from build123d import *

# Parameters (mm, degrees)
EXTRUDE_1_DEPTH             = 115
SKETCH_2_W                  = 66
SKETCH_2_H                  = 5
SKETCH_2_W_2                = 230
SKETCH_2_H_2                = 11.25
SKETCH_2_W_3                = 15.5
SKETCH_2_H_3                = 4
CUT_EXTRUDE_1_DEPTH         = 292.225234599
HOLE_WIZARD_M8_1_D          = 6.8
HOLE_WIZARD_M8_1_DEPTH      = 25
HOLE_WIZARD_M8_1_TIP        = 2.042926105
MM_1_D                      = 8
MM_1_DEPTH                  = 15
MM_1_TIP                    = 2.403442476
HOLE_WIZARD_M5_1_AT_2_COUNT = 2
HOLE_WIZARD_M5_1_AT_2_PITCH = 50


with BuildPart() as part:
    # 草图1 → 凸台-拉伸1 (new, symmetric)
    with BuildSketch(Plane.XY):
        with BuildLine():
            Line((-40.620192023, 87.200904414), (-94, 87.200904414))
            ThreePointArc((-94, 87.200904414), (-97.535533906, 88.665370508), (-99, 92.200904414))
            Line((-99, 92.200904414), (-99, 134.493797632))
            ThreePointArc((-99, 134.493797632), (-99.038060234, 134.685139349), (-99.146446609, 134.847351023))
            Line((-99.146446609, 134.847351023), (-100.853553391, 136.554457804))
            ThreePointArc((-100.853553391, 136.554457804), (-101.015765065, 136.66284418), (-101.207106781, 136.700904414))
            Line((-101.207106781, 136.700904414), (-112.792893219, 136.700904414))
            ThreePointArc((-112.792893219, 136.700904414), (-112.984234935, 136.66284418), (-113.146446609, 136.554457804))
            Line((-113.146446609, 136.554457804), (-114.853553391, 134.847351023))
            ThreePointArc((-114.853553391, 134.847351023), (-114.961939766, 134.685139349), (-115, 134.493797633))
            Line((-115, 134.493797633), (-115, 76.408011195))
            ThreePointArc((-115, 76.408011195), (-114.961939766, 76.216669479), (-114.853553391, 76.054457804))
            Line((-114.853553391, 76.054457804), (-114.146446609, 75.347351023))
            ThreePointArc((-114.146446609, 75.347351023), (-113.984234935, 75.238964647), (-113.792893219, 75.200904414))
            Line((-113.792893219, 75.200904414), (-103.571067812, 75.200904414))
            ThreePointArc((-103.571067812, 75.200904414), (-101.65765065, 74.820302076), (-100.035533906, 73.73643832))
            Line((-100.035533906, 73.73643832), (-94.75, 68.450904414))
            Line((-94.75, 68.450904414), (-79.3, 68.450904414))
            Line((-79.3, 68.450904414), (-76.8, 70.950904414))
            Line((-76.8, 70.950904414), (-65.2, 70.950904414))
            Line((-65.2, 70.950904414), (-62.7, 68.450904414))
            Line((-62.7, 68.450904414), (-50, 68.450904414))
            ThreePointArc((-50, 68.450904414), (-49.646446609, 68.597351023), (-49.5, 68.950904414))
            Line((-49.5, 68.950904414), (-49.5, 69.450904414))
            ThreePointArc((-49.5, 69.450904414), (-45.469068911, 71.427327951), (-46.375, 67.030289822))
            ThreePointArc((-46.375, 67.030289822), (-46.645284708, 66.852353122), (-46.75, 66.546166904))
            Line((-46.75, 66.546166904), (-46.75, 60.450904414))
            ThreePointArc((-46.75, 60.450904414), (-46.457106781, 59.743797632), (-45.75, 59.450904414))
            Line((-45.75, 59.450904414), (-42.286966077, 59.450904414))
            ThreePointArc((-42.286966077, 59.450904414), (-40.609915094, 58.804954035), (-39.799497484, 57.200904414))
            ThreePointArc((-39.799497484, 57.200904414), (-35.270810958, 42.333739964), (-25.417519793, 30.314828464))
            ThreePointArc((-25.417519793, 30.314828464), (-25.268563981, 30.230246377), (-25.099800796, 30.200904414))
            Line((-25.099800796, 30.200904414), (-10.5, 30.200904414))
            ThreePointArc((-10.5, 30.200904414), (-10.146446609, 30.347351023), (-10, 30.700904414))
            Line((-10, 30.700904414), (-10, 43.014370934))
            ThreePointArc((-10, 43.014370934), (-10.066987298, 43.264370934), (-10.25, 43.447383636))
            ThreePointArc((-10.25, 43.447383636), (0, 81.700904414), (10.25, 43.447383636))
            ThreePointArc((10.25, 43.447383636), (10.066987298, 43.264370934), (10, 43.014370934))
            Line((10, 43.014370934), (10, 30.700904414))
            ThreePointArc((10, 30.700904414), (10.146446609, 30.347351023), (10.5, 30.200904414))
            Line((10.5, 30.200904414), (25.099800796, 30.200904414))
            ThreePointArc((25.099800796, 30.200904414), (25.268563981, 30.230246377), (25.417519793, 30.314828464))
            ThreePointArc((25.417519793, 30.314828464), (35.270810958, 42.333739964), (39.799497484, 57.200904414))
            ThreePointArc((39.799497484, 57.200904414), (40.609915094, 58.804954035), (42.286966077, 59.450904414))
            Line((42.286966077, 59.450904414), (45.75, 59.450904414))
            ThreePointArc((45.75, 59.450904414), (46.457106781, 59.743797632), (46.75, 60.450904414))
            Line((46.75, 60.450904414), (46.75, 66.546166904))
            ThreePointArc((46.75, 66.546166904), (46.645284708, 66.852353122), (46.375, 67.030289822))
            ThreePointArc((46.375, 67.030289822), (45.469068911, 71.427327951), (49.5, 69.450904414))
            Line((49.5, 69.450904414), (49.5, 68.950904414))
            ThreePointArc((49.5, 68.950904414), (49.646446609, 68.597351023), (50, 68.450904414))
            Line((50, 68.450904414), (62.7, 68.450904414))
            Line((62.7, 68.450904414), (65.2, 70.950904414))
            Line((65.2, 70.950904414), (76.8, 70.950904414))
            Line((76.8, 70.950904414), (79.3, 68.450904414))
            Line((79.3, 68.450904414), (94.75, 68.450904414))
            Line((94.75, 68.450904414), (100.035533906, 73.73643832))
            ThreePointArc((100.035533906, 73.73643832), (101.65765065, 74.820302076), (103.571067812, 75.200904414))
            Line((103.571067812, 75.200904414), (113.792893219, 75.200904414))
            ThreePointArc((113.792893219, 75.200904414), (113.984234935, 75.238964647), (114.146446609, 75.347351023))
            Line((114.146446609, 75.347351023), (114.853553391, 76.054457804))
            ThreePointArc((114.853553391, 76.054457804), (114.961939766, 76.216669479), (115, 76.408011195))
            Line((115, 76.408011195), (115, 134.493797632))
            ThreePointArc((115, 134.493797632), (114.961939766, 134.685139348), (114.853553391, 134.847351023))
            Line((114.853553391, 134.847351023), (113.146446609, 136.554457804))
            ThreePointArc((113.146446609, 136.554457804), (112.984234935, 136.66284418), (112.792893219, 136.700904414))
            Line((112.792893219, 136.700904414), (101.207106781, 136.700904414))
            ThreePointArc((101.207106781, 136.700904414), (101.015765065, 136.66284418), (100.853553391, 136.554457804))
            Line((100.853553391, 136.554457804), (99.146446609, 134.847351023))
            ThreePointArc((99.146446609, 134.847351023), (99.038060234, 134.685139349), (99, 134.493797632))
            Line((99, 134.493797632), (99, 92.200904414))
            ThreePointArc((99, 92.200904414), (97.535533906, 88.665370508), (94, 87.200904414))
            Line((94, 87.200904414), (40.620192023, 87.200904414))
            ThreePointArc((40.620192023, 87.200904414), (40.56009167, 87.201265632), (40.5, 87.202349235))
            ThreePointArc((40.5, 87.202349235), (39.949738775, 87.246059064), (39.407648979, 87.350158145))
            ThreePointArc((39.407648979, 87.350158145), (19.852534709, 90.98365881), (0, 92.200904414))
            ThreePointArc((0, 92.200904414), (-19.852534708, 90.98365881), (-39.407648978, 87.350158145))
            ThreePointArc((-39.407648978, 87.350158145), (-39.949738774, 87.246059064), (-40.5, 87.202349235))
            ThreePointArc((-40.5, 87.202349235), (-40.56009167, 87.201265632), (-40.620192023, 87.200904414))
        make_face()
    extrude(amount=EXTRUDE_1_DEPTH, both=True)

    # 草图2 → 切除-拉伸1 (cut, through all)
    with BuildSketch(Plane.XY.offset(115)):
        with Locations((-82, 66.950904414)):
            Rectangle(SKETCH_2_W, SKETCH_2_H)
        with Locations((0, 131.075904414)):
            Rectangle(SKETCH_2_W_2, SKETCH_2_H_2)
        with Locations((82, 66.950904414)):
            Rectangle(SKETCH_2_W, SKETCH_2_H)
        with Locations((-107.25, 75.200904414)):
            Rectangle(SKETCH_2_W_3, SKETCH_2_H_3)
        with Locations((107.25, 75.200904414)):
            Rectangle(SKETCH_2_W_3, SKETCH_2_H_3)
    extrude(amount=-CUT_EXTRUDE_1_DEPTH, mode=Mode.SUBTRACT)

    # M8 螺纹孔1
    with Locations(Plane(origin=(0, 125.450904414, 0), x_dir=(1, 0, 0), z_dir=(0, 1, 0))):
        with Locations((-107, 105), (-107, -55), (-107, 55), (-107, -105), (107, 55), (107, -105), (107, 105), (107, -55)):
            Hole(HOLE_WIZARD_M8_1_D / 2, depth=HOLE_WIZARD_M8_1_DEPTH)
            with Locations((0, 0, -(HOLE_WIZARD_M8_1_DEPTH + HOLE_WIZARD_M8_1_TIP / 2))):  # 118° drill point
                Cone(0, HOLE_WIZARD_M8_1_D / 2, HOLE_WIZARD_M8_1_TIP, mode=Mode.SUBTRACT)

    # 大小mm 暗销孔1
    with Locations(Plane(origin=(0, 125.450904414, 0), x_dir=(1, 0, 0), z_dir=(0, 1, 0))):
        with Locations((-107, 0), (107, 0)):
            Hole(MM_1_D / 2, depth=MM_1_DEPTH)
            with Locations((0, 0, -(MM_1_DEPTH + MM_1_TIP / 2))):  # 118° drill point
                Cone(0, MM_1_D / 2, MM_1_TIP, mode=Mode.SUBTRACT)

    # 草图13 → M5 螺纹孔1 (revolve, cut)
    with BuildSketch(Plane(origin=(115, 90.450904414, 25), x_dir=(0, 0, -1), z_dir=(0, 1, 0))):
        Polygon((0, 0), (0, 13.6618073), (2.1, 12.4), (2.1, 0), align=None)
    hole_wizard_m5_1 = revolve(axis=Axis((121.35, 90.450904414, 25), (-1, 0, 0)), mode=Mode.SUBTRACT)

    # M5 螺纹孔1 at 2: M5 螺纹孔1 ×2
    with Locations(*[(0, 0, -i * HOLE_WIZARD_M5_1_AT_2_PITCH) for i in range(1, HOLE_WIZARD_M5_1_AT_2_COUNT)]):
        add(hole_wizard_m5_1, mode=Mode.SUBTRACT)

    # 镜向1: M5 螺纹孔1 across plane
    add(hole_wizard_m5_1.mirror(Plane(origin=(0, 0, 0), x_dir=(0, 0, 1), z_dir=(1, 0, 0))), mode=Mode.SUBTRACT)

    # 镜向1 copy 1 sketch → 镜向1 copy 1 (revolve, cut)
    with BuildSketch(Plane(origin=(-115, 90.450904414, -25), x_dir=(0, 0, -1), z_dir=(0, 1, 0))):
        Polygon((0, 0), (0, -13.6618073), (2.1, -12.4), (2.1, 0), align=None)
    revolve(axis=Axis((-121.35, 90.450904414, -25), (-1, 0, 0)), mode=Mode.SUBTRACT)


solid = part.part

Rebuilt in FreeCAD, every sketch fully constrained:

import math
import FreeCAD as App
import Part
import Sketcher

V = App.Vector
Q = App.Units.Quantity


def add_polygon(sketch, points):
    """Adds a closed chain of lines whose ends are joined by coincident constraints."""
    first, n = sketch.GeometryCount, len(points)
    for a, b in zip(points, points[1:] + points[:1]):
        sketch.addGeometry(Part.LineSegment(App.Vector(*a, 0), App.Vector(*b, 0)), False)
    for i in range(n):
        sketch.addConstraint(Sketcher.Constraint("Coincident", first + i, 2, first + (i + 1) % n, 1))

doc = App.newDocument("Part")
body = doc.addObject("PartDesign::Body", "Body")

# Sketch on XY plane
sketch1 = doc.addObject("Sketcher::SketchObject", "Sketch")
body.addObject(sketch1)
sketch1.AttachmentSupport = (doc.XY_Plane, [""])
sketch1.MapMode = "FlatFace"
sketch1.addGeometry(Part.LineSegment(V(-40.620192, 87.200904, 0), V(-94, 87.200904, 0)), False)
sketch1.addGeometry(Part.ArcOfCircle(Part.Circle(V(-94, 92.200904, 0), V(0, 0, 1), 5), math.radians(180), math.radians(270)), False)
sketch1.addGeometry(Part.LineSegment(V(-99, 92.200904, 0), V(-99, 134.493798, 0)), False)
sketch1.addGeometry(Part.ArcOfCircle(Part.Circle(V(-99.5, 134.493798, 0), V(0, 0, 1), 0.5), math.radians(0), math.radians(45)), False)
sketch1.addGeometry(Part.LineSegment(V(-99.146447, 134.847351, 0), V(-100.853553, 136.554458, 0)), False)
sketch1.addGeometry(Part.ArcOfCircle(Part.Circle(V(-101.207107, 136.200904, 0), V(0, 0, 1), 0.5), math.radians(45), math.radians(90)), False)
sketch1.addGeometry(Part.LineSegment(V(-101.207107, 136.700904, 0), V(-112.792893, 136.700904, 0)), False)
sketch1.addGeometry(Part.ArcOfCircle(Part.Circle(V(-112.792893, 136.200904, 0), V(0, 0, 1), 0.5), math.radians(90), math.radians(135)), False)
sketch1.addGeometry(Part.LineSegment(V(-113.146447, 136.554458, 0), V(-114.853553, 134.847351, 0)), False)
sketch1.addGeometry(Part.ArcOfCircle(Part.Circle(V(-114.5, 134.493798, 0), V(0, 0, 1), 0.5), math.radians(135), math.radians(180)), False)
sketch1.addGeometry(Part.LineSegment(V(-115, 134.493798, 0), V(-115, 76.408011, 0)), False)
sketch1.addGeometry(Part.ArcOfCircle(Part.Circle(V(-114.5, 76.408011, 0), V(0, 0, 1), 0.5), math.radians(-180), math.radians(-135)), False)
sketch1.addGeometry(Part.LineSegment(V(-114.853553, 76.054458, 0), V(-114.146447, 75.347351, 0)), False)
sketch1.addGeometry(Part.ArcOfCircle(Part.Circle(V(-113.792893, 75.700904, 0), V(0, 0, 1), 0.5), math.radians(-135), math.radians(-90)), False)
sketch1.addGeometry(Part.LineSegment(V(-113.792893, 75.200904, 0), V(-103.571068, 75.200904, 0)), False)
sketch1.addGeometry(Part.ArcOfCircle(Part.Circle(V(-103.571068, 70.200904, 0), V(0, 0, 1), 5), math.radians(45), math.radians(90)), False)
sketch1.addGeometry(Part.LineSegment(V(-100.035534, 73.736438, 0), V(-94.75, 68.450904, 0)), False)
sketch1.addGeometry(Part.LineSegment(V(-94.75, 68.450904, 0), V(-79.3, 68.450904, 0)), False)
sketch1.addGeometry(Part.LineSegment(V(-79.3, 68.450904, 0), V(-76.8, 70.950904, 0)), False)
sketch1.addGeometry(Part.LineSegment(V(-76.8, 70.950904, 0), V(-65.2, 70.950904, 0)), False)
sketch1.addGeometry(Part.LineSegment(V(-65.2, 70.950904, 0), V(-62.7, 68.450904, 0)), False)
sketch1.addGeometry(Part.LineSegment(V(-62.7, 68.450904, 0), V(-50, 68.450904, 0)), False)
sketch1.addGeometry(Part.ArcOfCircle(Part.Circle(V(-50, 68.950904, 0), V(0, 0, 1), 0.5), math.radians(-90), math.radians(0)), False)
sketch1.addGeometry(Part.LineSegment(V(-49.5, 68.950904, 0), V(-49.5, 69.450904, 0)), False)
sketch1.addGeometry(Part.ArcOfCircle(Part.Circle(V(-47, 69.450904, 0), V(0, 0, 1), 2.5), math.radians(-75.522488), math.radians(180)), False)
sketch1.addGeometry(Part.ArcOfCircle(Part.Circle(V(-46.25, 66.546167, 0), V(0, 0, 1), 0.5), math.radians(104.477512), math.radians(180)), False)
sketch1.addGeometry(Part.LineSegment(V(-46.75, 66.546167, 0), V(-46.75, 60.450904, 0)), False)
sketch1.addGeometry(Part.ArcOfCircle(Part.Circle(V(-45.75, 60.450904, 0), V(0, 0, 1), 1), math.radians(180), math.radians(270)), False)
sketch1.addGeometry(Part.LineSegment(V(-45.75, 59.450904, 0), V(-42.286966, 59.450904, 0)), False)
sketch1.addGeometry(Part.ArcOfCircle(Part.Circle(V(-42.286966, 56.950904, 0), V(0, 0, 1), 2.5), math.radians(5.739171), math.radians(90)), False)
sketch1.addGeometry(Part.ArcOfCircle(Part.Circle(V(0, 61.200904, 0), V(0, 0, 1), 40), math.radians(-174.26083), math.radians(-129.452477)), False)
sketch1.addGeometry(Part.ArcOfCircle(Part.Circle(V(-25.099801, 30.700904, 0), V(0, 0, 1), 0.5), math.radians(-129.452477), math.radians(-90)), False)
sketch1.addGeometry(Part.LineSegment(V(-25.099801, 30.200904, 0), V(-10.5, 30.200904, 0)), False)
sketch1.addGeometry(Part.ArcOfCircle(Part.Circle(V(-10.5, 30.700904, 0), V(0, 0, 1), 0.5), math.radians(-90), math.radians(0)), False)
sketch1.addGeometry(Part.LineSegment(V(-10, 30.700904, 0), V(-10, 43.014371, 0)), False)
sketch1.addGeometry(Part.ArcOfCircle(Part.Circle(V(-10.5, 43.014371, 0), V(0, 0, 1), 0.5), math.radians(0), math.radians(60)), False)
sketch1.addGeometry(Part.ArcOfCircle(Part.Circle(V(0, 61.200904, 0), V(0, 0, 1), 20.5), math.radians(-60), math.radians(240)), False)
sketch1.addGeometry(Part.ArcOfCircle(Part.Circle(V(10.5, 43.014371, 0), V(0, 0, 1), 0.5), math.radians(120), math.radians(180)), False)
sketch1.addGeometry(Part.LineSegment(V(10, 43.014371, 0), V(10, 30.700904, 0)), False)
sketch1.addGeometry(Part.ArcOfCircle(Part.Circle(V(10.5, 30.700904, 0), V(0, 0, 1), 0.5), math.radians(180), math.radians(270)), False)
sketch1.addGeometry(Part.LineSegment(V(10.5, 30.200904, 0), V(25.099801, 30.200904, 0)), False)
sketch1.addGeometry(Part.ArcOfCircle(Part.Circle(V(25.099801, 30.700904, 0), V(0, 0, 1), 0.5), math.radians(-90), math.radians(-50.547523)), False)
sketch1.addGeometry(Part.ArcOfCircle(Part.Circle(V(0, 61.200904, 0), V(0, 0, 1), 40), math.radians(-50.547523), math.radians(-5.73917)), False)
sketch1.addGeometry(Part.ArcOfCircle(Part.Circle(V(42.286966, 56.950904, 0), V(0, 0, 1), 2.5), math.radians(90), math.radians(174.260829)), False)
sketch1.addGeometry(Part.LineSegment(V(42.286966, 59.450904, 0), V(45.75, 59.450904, 0)), False)
sketch1.addGeometry(Part.ArcOfCircle(Part.Circle(V(45.75, 60.450904, 0), V(0, 0, 1), 1), math.radians(-90), math.radians(0)), False)
sketch1.addGeometry(Part.LineSegment(V(46.75, 60.450904, 0), V(46.75, 66.546167, 0)), False)
sketch1.addGeometry(Part.ArcOfCircle(Part.Circle(V(46.25, 66.546167, 0), V(0, 0, 1), 0.5), math.radians(0), math.radians(75.522488)), False)
sketch1.addGeometry(Part.ArcOfCircle(Part.Circle(V(47, 69.450904, 0), V(0, 0, 1), 2.5), math.radians(0), math.radians(255.522488)), False)
sketch1.addGeometry(Part.LineSegment(V(49.5, 69.450904, 0), V(49.5, 68.950904, 0)), False)
sketch1.addGeometry(Part.ArcOfCircle(Part.Circle(V(50, 68.950904, 0), V(0, 0, 1), 0.5), math.radians(180), math.radians(270)), False)
sketch1.addGeometry(Part.LineSegment(V(50, 68.450904, 0), V(62.7, 68.450904, 0)), False)
sketch1.addGeometry(Part.LineSegment(V(62.7, 68.450904, 0), V(65.2, 70.950904, 0)), False)
sketch1.addGeometry(Part.LineSegment(V(65.2, 70.950904, 0), V(76.8, 70.950904, 0)), False)
sketch1.addGeometry(Part.LineSegment(V(76.8, 70.950904, 0), V(79.3, 68.450904, 0)), False)
sketch1.addGeometry(Part.LineSegment(V(79.3, 68.450904, 0), V(94.75, 68.450904, 0)), False)
sketch1.addGeometry(Part.LineSegment(V(94.75, 68.450904, 0), V(100.035534, 73.736438, 0)), False)
sketch1.addGeometry(Part.ArcOfCircle(Part.Circle(V(103.571068, 70.200904, 0), V(0, 0, 1), 5), math.radians(90), math.radians(135)), False)
sketch1.addGeometry(Part.LineSegment(V(103.571068, 75.200904, 0), V(113.792893, 75.200904, 0)), False)
sketch1.addGeometry(Part.ArcOfCircle(Part.Circle(V(113.792893, 75.700904, 0), V(0, 0, 1), 0.5), math.radians(-90), math.radians(-45)), False)
sketch1.addGeometry(Part.LineSegment(V(114.146447, 75.347351, 0), V(114.853553, 76.054458, 0)), False)
sketch1.addGeometry(Part.ArcOfCircle(Part.Circle(V(114.5, 76.408011, 0), V(0, 0, 1), 0.5), math.radians(-45), math.radians(0)), False)
sketch1.addGeometry(Part.LineSegment(V(115, 76.408011, 0), V(115, 134.493798, 0)), False)
sketch1.addGeometry(Part.ArcOfCircle(Part.Circle(V(114.5, 134.493798, 0), V(0, 0, 1), 0.5), math.radians(0), math.radians(45)), False)
sketch1.addGeometry(Part.LineSegment(V(114.853553, 134.847351, 0), V(113.146447, 136.554458, 0)), False)
sketch1.addGeometry(Part.ArcOfCircle(Part.Circle(V(112.792893, 136.200904, 0), V(0, 0, 1), 0.5), math.radians(45), math.radians(90)), False)
sketch1.addGeometry(Part.LineSegment(V(112.792893, 136.700904, 0), V(101.207107, 136.700904, 0)), False)
sketch1.addGeometry(Part.ArcOfCircle(Part.Circle(V(101.207107, 136.200904, 0), V(0, 0, 1), 0.5), math.radians(90), math.radians(135)), False)
sketch1.addGeometry(Part.LineSegment(V(100.853553, 136.554458, 0), V(99.146447, 134.847351, 0)), False)
sketch1.addGeometry(Part.ArcOfCircle(Part.Circle(V(99.5, 134.493798, 0), V(0, 0, 1), 0.5), math.radians(135), math.radians(180)), False)
sketch1.addGeometry(Part.LineSegment(V(99, 134.493798, 0), V(99, 92.200904, 0)), False)
sketch1.addGeometry(Part.ArcOfCircle(Part.Circle(V(94, 92.200904, 0), V(0, 0, 1), 5), math.radians(-90), math.radians(0)), False)
sketch1.addGeometry(Part.LineSegment(V(94, 87.200904, 0), V(40.620192, 87.200904, 0)), False)
sketch1.addGeometry(Part.ArcOfCircle(Part.Circle(V(40.620192, 92.2009, 0), V(0, 0, 1), 4.999996), math.radians(-91.377432), math.radians(-89.999999)), False)
sketch1.addGeometry(Part.ArcOfCircle(Part.Circle(V(40.620192, 92.200904, 0), V(0, 0, 1), 5), math.radians(-104.034648), math.radians(-91.377432)), False)
sketch1.addGeometry(Part.ArcOfCircle(Part.Circle(V(0, -70.299096, 0), V(0, 0, 1), 162.5), math.radians(75.965352), math.radians(90)), False)
sketch1.addGeometry(Part.ArcOfCircle(Part.Circle(V(0, -70.299096, 0), V(0, 0, 1), 162.5), math.radians(90), math.radians(104.034648)), False)
sketch1.addGeometry(Part.ArcOfCircle(Part.Circle(V(-40.620192, 92.200904, 0), V(0, 0, 1), 5), math.radians(-88.622568), math.radians(-75.965352)), False)
sketch1.addGeometry(Part.ArcOfCircle(Part.Circle(V(-40.620192, 92.2009, 0), V(0, 0, 1), 4.999996), math.radians(-90.000001), math.radians(-88.622568)), False)
sketch1.addConstraint(Sketcher.Constraint("Tangent", 0, 2, 1, 2))
sketch1.addConstraint(Sketcher.Constraint("Tangent", 1, 1, 2, 1))
sketch1.addConstraint(Sketcher.Constraint("Tangent", 2, 2, 3, 1))
sketch1.addConstraint(Sketcher.Constraint("Tangent", 3, 2, 4, 1))
sketch1.addConstraint(Sketcher.Constraint("Tangent", 4, 2, 5, 1))
sketch1.addConstraint(Sketcher.Constraint("Tangent", 5, 2, 6, 1))
sketch1.addConstraint(Sketcher.Constraint("Tangent", 6, 2, 7, 1))
sketch1.addConstraint(Sketcher.Constraint("Tangent", 7, 2, 8, 1))
sketch1.addConstraint(Sketcher.Constraint("Tangent", 8, 2, 9, 1))
sketch1.addConstraint(Sketcher.Constraint("Tangent", 9, 2, 10, 1))
sketch1.addConstraint(Sketcher.Constraint("Tangent", 10, 2, 11, 1))
sketch1.addConstraint(Sketcher.Constraint("Tangent", 11, 2, 12, 1))
sketch1.addConstraint(Sketcher.Constraint("Tangent", 12, 2, 13, 1))
sketch1.addConstraint(Sketcher.Constraint("Tangent", 13, 2, 14, 1))
sketch1.addConstraint(Sketcher.Constraint("Tangent", 14, 2, 15, 2))
sketch1.addConstraint(Sketcher.Constraint("Tangent", 15, 1, 16, 1))
sketch1.addConstraint(Sketcher.Constraint("Coincident", 16, 2, 17, 1))
sketch1.addConstraint(Sketcher.Constraint("Coincident", 17, 2, 18, 1))
sketch1.addConstraint(Sketcher.Constraint("Coincident", 18, 2, 19, 1))
sketch1.addConstraint(Sketcher.Constraint("Coincident", 19, 2, 20, 1))
sketch1.addConstraint(Sketcher.Constraint("Coincident", 20, 2, 21, 1))
sketch1.addConstraint(Sketcher.Constraint("Tangent", 21, 2, 22, 1))
sketch1.addConstraint(Sketcher.Constraint("Tangent", 22, 2, 23, 1))
sketch1.addConstraint(Sketcher.Constraint("Tangent", 23, 2, 24, 2))
sketch1.addConstraint(Sketcher.Constraint("Tangent", 24, 1, 25, 1))
sketch1.addConstraint(Sketcher.Constraint("Tangent", 25, 2, 26, 1))
sketch1.addConstraint(Sketcher.Constraint("Tangent", 26, 2, 27, 1))
sketch1.addConstraint(Sketcher.Constraint("Tangent", 27, 2, 28, 1))
sketch1.addConstraint(Sketcher.Constraint("Tangent", 28, 2, 29, 2))
sketch1.addConstraint(Sketcher.Constraint("Tangent", 29, 1, 30, 1))
sketch1.addConstraint(Sketcher.Constraint("Tangent", 30, 2, 31, 1))
sketch1.addConstraint(Sketcher.Constraint("Tangent", 31, 2, 32, 1))
sketch1.addConstraint(Sketcher.Constraint("Tangent", 32, 2, 33, 1))
sketch1.addConstraint(Sketcher.Constraint("Tangent", 33, 2, 34, 1))
sketch1.addConstraint(Sketcher.Constraint("Tangent", 34, 2, 35, 1))
sketch1.addConstraint(Sketcher.Constraint("Tangent", 35, 2, 36, 2))
sketch1.addConstraint(Sketcher.Constraint("Tangent", 36, 1, 37, 1))
sketch1.addConstraint(Sketcher.Constraint("Tangent", 37, 2, 38, 1))
sketch1.addConstraint(Sketcher.Constraint("Tangent", 38, 2, 39, 1))
sketch1.addConstraint(Sketcher.Constraint("Tangent", 39, 2, 40, 1))
sketch1.addConstraint(Sketcher.Constraint("Tangent", 40, 2, 41, 1))
sketch1.addConstraint(Sketcher.Constraint("Tangent", 41, 2, 42, 1))
sketch1.addConstraint(Sketcher.Constraint("Tangent", 42, 2, 43, 2))
sketch1.addConstraint(Sketcher.Constraint("Tangent", 43, 1, 44, 1))
sketch1.addConstraint(Sketcher.Constraint("Tangent", 44, 2, 45, 1))
sketch1.addConstraint(Sketcher.Constraint("Tangent", 45, 2, 46, 1))
sketch1.addConstraint(Sketcher.Constraint("Tangent", 46, 2, 47, 1))
sketch1.addConstraint(Sketcher.Constraint("Tangent", 47, 2, 48, 2))
sketch1.addConstraint(Sketcher.Constraint("Tangent", 48, 1, 49, 1))
sketch1.addConstraint(Sketcher.Constraint("Tangent", 49, 2, 50, 1))
sketch1.addConstraint(Sketcher.Constraint("Tangent", 50, 2, 51, 1))
sketch1.addConstraint(Sketcher.Constraint("Coincident", 51, 2, 52, 1))
sketch1.addConstraint(Sketcher.Constraint("Coincident", 52, 2, 53, 1))
sketch1.addConstraint(Sketcher.Constraint("Coincident", 53, 2, 54, 1))
sketch1.addConstraint(Sketcher.Constraint("Coincident", 54, 2, 55, 1))
sketch1.addConstraint(Sketcher.Constraint("Coincident", 55, 2, 56, 1))
sketch1.addConstraint(Sketcher.Constraint("Tangent", 56, 2, 57, 2))
sketch1.addConstraint(Sketcher.Constraint("Tangent", 57, 1, 58, 1))
sketch1.addConstraint(Sketcher.Constraint("Tangent", 58, 2, 59, 1))
sketch1.addConstraint(Sketcher.Constraint("Tangent", 59, 2, 60, 1))
sketch1.addConstraint(Sketcher.Constraint("Tangent", 60, 2, 61, 1))
sketch1.addConstraint(Sketcher.Constraint("Tangent", 61, 2, 62, 1))
sketch1.addConstraint(Sketcher.Constraint("Tangent", 62, 2, 63, 1))
sketch1.addConstraint(Sketcher.Constraint("Tangent", 63, 2, 64, 1))
sketch1.addConstraint(Sketcher.Constraint("Tangent", 64, 2, 65, 1))
sketch1.addConstraint(Sketcher.Constraint("Tangent", 65, 2, 66, 1))
sketch1.addConstraint(Sketcher.Constraint("Tangent", 66, 2, 67, 1))
sketch1.addConstraint(Sketcher.Constraint("Tangent", 67, 2, 68, 1))
sketch1.addConstraint(Sketcher.Constraint("Tangent", 68, 2, 69, 1))
sketch1.addConstraint(Sketcher.Constraint("Tangent", 69, 2, 70, 1))
sketch1.addConstraint(Sketcher.Constraint("Tangent", 70, 2, 71, 2))
sketch1.addConstraint(Sketcher.Constraint("Tangent", 71, 1, 72, 1))
sketch1.addConstraint(Sketcher.Constraint("Tangent", 72, 2, 73, 2))
sketch1.addConstraint(Sketcher.Constraint("Tangent", 73, 1, 74, 2))
sketch1.addConstraint(Sketcher.Constraint("Tangent", 74, 1, 75, 1))
sketch1.addConstraint(Sketcher.Constraint("Tangent", 75, 2, 76, 1))
sketch1.addConstraint(Sketcher.Constraint("Tangent", 76, 2, 77, 2))
sketch1.addConstraint(Sketcher.Constraint("Tangent", 77, 1, 78, 2))
sketch1.addConstraint(Sketcher.Constraint("Tangent", 78, 1, 0, 1))
sketch1.addConstraint(Sketcher.Constraint("Horizontal", 0))
sketch1.addConstraint(Sketcher.Constraint("Vertical", 2))
sketch1.addConstraint(Sketcher.Constraint("Horizontal", 6))
sketch1.addConstraint(Sketcher.Constraint("Vertical", 10))
sketch1.addConstraint(Sketcher.Constraint("Horizontal", 14))
sketch1.addConstraint(Sketcher.Constraint("Horizontal", 17))
sketch1.addConstraint(Sketcher.Constraint("Horizontal", 19))
sketch1.addConstraint(Sketcher.Constraint("Horizontal", 21))
sketch1.addConstraint(Sketcher.Constraint("Vertical", 23))
sketch1.addConstraint(Sketcher.Constraint("Vertical", 26))
sketch1.addConstraint(Sketcher.Constraint("Horizontal", 28))
sketch1.addConstraint(Sketcher.Constraint("Horizontal", 32))
sketch1.addConstraint(Sketcher.Constraint("Vertical", 34))
sketch1.addConstraint(Sketcher.Constraint("Vertical", 38))
sketch1.addConstraint(Sketcher.Constraint("Horizontal", 40))
sketch1.addConstraint(Sketcher.Constraint("Horizontal", 44))
sketch1.addConstraint(Sketcher.Constraint("Vertical", 46))
sketch1.addConstraint(Sketcher.Constraint("Vertical", 49))
sketch1.addConstraint(Sketcher.Constraint("Horizontal", 51))
sketch1.addConstraint(Sketcher.Constraint("Horizontal", 53))
sketch1.addConstraint(Sketcher.Constraint("Horizontal", 55))
sketch1.addConstraint(Sketcher.Constraint("Horizontal", 58))
sketch1.addConstraint(Sketcher.Constraint("Vertical", 62))
sketch1.addConstraint(Sketcher.Constraint("Horizontal", 66))
sketch1.addConstraint(Sketcher.Constraint("Vertical", 70))
sketch1.addConstraint(Sketcher.Constraint("Horizontal", 72))
sketch1.addConstraint(Sketcher.Constraint("Coincident", 36, 3, 30, 3))
sketch1.addConstraint(Sketcher.Constraint("Coincident", 42, 3, 30, 3))
sketch1.addConstraint(Sketcher.Constraint("Equal", 3, 5))
sketch1.addConstraint(Sketcher.Constraint("Equal", 5, 7))
sketch1.addConstraint(Sketcher.Constraint("Equal", 7, 9))
sketch1.addConstraint(Sketcher.Constraint("Equal", 9, 11))
sketch1.addConstraint(Sketcher.Constraint("Equal", 11, 13))
sketch1.addConstraint(Sketcher.Constraint("Equal", 1, 15))
sketch1.addConstraint(Sketcher.Constraint("Equal", 13, 22))
sketch1.addConstraint(Sketcher.Constraint("Equal", 22, 25))
sketch1.addConstraint(Sketcher.Constraint("Equal", 24, 29))
sketch1.addConstraint(Sketcher.Constraint("Equal", 25, 31))
sketch1.addConstraint(Sketcher.Constraint("Equal", 31, 33))
sketch1.addConstraint(Sketcher.Constraint("Equal", 33, 35))
sketch1.addConstraint(Sketcher.Constraint("Equal", 35, 37))
sketch1.addConstraint(Sketcher.Constraint("Equal", 37, 39))
sketch1.addConstraint(Sketcher.Constraint("Equal", 39, 41))
sketch1.addConstraint(Sketcher.Constraint("Equal", 30, 42))
sketch1.addConstraint(Sketcher.Constraint("Equal", 29, 43))
sketch1.addConstraint(Sketcher.Constraint("Equal", 27, 45))
sketch1.addConstraint(Sketcher.Constraint("Equal", 41, 47))
sketch1.addConstraint(Sketcher.Constraint("Equal", 43, 48))
sketch1.addConstraint(Sketcher.Constraint("Equal", 47, 50))
sketch1.addConstraint(Sketcher.Constraint("Equal", 15, 57))
sketch1.addConstraint(Sketcher.Constraint("Equal", 50, 59))
sketch1.addConstraint(Sketcher.Constraint("Equal", 59, 61))
sketch1.addConstraint(Sketcher.Constraint("Equal", 61, 63))
sketch1.addConstraint(Sketcher.Constraint("Equal", 63, 65))
sketch1.addConstraint(Sketcher.Constraint("Equal", 65, 67))
sketch1.addConstraint(Sketcher.Constraint("Equal", 67, 69))
sketch1.addConstraint(Sketcher.Constraint("Equal", 57, 71))
sketch1.addConstraint(Sketcher.Constraint("Equal", 71, 74))
sketch1.addConstraint(Sketcher.Constraint("Equal", 75, 76))
sketch1.addConstraint(Sketcher.Constraint("Equal", 74, 77))
sketch1.addConstraint(Sketcher.Constraint("Equal", 73, 78))
sketch1.addConstraint(Sketcher.Constraint("Symmetric", 35, 3, 37, 3, -2))
sketch1.addConstraint(Sketcher.Constraint("Symmetric", 27, 3, 45, 3, -2))
sketch1.addConstraint(Sketcher.Constraint("Symmetric", 24, 3, 48, 3, -2))
sketch1.addConstraint(Sketcher.Constraint("Symmetric", 15, 3, 57, 3, -2))
sketch1.addConstraint(Sketcher.Constraint("Symmetric", 11, 3, 61, 3, -2))
sketch1.addConstraint(Sketcher.Constraint("Symmetric", 7, 3, 65, 3, -2))
sketch1.addConstraint(Sketcher.Constraint("Symmetric", 3, 3, 69, 3, -2))
sketch1.addConstraint(Sketcher.Constraint("Symmetric", 73, 3, 77, 3, -2))
sketch1.addConstraint(Sketcher.Constraint("Symmetric", 20, 2, 51, 2, -2))
sketch1.addConstraint(Sketcher.Constraint("Symmetric", 19, 2, 52, 2, -2))
sketch1.addConstraint(Sketcher.Constraint("Symmetric", 17, 2, 54, 2, -2))
sketch1.addConstraint(Sketcher.Constraint("Symmetric", 73, 1, 77, 1, -2))
sketch1.addConstraint(Sketcher.Constraint("PointOnObject", 75, 2, -2))
sketch1.addConstraint(Sketcher.Constraint("Perpendicular", 4, 8))
sketch1.addConstraint(Sketcher.Constraint("Perpendicular", 8, 12))
sketch1.addConstraint(Sketcher.Constraint("Parallel", 12, 16))
sketch1.addConstraint(Sketcher.Constraint("Perpendicular", 16, 18))
sketch1.addConstraint(Sketcher.Constraint("Perpendicular", 18, 20))
sketch1.addConstraint(Sketcher.Constraint("Perpendicular", 20, 52))
sketch1.addConstraint(Sketcher.Constraint("Perpendicular", 52, 54))
sketch1.addConstraint(Sketcher.Constraint("Perpendicular", 54, 56))
sketch1.addConstraint(Sketcher.Constraint("Parallel", 56, 60))
sketch1.addConstraint(Sketcher.Constraint("Perpendicular", 60, 64))
sketch1.addConstraint(Sketcher.Constraint("Perpendicular", 64, 68))
sketch1.addConstraint(Sketcher.Constraint("Horizontal", 3, 3, 9, 3))
sketch1.addConstraint(Sketcher.Constraint("Horizontal", 33, 3, 39, 3))
sketch1.addConstraint(Sketcher.Constraint("Horizontal", 17, 2, 20, 2))
sketch1.addConstraint(Sketcher.Constraint("Horizontal", 70, 2, 75, 2))
sketch1.addConstraint(Sketcher.Constraint("Radius", 1, 5.0))
sketch1.addConstraint(Sketcher.Constraint("Radius", 27, 1.0))
sketch1.addConstraint(Sketcher.Constraint("Radius", 30, 40.0))
sketch1.addConstraint(Sketcher.Constraint("Radius", 3, 0.5))
sketch1.addConstraint(Sketcher.Constraint("Radius", 24, 2.5))
sketch1.addConstraint(Sketcher.Constraint("Radius", 36, 20.5))
sketch1.addConstraint(Sketcher.Constraint("Radius", 75, 162.5))
sketch1.addConstraint(Sketcher.Constraint("Distance", 12, 1.0))
sketch1.addConstraint(Sketcher.Constraint("DistanceX", 19, 1, 19, 2, 11.6))
sketch1.addConstraint(Sketcher.Constraint("DistanceX", 21, 1, 21, 2, 12.7))
sketch1.addConstraint(Sketcher.Constraint("DistanceY", 23, 1, 23, 2, 0.5))
sketch1.addConstraint(Sketcher.Constraint("DistanceX", 1, 3, -1, 1, 94.0))
sketch1.addConstraint(Sketcher.Constraint("DistanceX", 22, 3, -1, 1, 50.0))
sketch1.addConstraint(Sketcher.Constraint("DistanceX", 9, 2, -1, 1, 115.0))
sketch1.addConstraint(Sketcher.Constraint("DistanceX", 33, 2, -1, 1, 10.0))
sketch1.addConstraint(Sketcher.Constraint("DistanceX", 17, 1, 17, 2, 15.45))
sketch1.addConstraint(Sketcher.Constraint("DistanceX", 17, 2, -1, 1, 79.3))
sketch1.addConstraint(Sketcher.Constraint("DistanceX", -1, 1, 73, 1, 40.5))
sketch1.addConstraint(Sketcher.Constraint("DistanceX", 25, 3, -1, 1, 46.25))
sketch1.addConstraint(Sketcher.Constraint("DistanceX", 32, 1, 32, 2, 14.599801))
sketch1.addConstraint(Sketcher.Constraint("DistanceY", -1, 1, 73, 3, 92.2009))
sketch1.addConstraint(Sketcher.Constraint("DistanceX", 6, 2, 6, 1, 11.585786))
sketch1.addConstraint(Sketcher.Constraint("DistanceX", 14, 1, 14, 2, 10.221825))
sketch1.addConstraint(Sketcher.Constraint("DistanceX", 28, 1, 28, 2, 3.463034))
sketch1.addConstraint(Sketcher.Constraint("DistanceY", 2, 1, 2, 2, 42.292893))
sketch1.addConstraint(Sketcher.Constraint("DistanceY", 10, 2, 10, 1, 58.085786))
sketch1.addConstraint(Sketcher.Constraint("DistanceY", 26, 2, 26, 1, 6.095262))
pad1 = doc.addObject("PartDesign::Pad", "Pad")
body.addObject(pad1)
pad1.Profile = sketch1
pad1.Length = 230
pad1.Midplane = True

# Sketch on XY plane
sketch2 = doc.addObject("Sketcher::SketchObject", "Sketch001")
body.addObject(sketch2)
sketch2.AttachmentSupport = (doc.XY_Plane, [""])
sketch2.MapMode = "FlatFace"
sketch2.AttachmentOffset = App.Placement(V(0, 0, 115), App.Rotation())
add_polygon(sketch2, [(-115, 69.450904), (-115, 64.450904), (-49, 64.450904), (-49, 69.450904)])  # lines 0-3
add_polygon(sketch2, [(-115, 136.700904), (-115, 125.450904), (115, 125.450904), (115, 136.700904)])  # lines 4-7
add_polygon(sketch2, [(49, 69.450904), (49, 64.450904), (115, 64.450904), (115, 69.450904)])  # lines 8-11
add_polygon(sketch2, [(-115, 77.200904), (-115, 73.200904), (-99.5, 73.200904), (-99.5, 77.200904)])  # lines 12-15
add_polygon(sketch2, [(99.5, 77.200904), (99.5, 73.200904), (115, 73.200904), (115, 77.200904)])  # lines 16-19
sketch2.addConstraint(Sketcher.Constraint("Vertical", 0))
sketch2.addConstraint(Sketcher.Constraint("Horizontal", 1))
sketch2.addConstraint(Sketcher.Constraint("Vertical", 2))
sketch2.addConstraint(Sketcher.Constraint("Horizontal", 3))
sketch2.addConstraint(Sketcher.Constraint("Vertical", 4))
sketch2.addConstraint(Sketcher.Constraint("Horizontal", 5))
sketch2.addConstraint(Sketcher.Constraint("Vertical", 6))
sketch2.addConstraint(Sketcher.Constraint("Horizontal", 7))
sketch2.addConstraint(Sketcher.Constraint("Vertical", 8))
sketch2.addConstraint(Sketcher.Constraint("Horizontal", 9))
sketch2.addConstraint(Sketcher.Constraint("Vertical", 10))
sketch2.addConstraint(Sketcher.Constraint("Horizontal", 11))
sketch2.addConstraint(Sketcher.Constraint("Vertical", 12))
sketch2.addConstraint(Sketcher.Constraint("Horizontal", 13))
sketch2.addConstraint(Sketcher.Constraint("Vertical", 14))
sketch2.addConstraint(Sketcher.Constraint("Horizontal", 15))
sketch2.addConstraint(Sketcher.Constraint("Vertical", 16))
sketch2.addConstraint(Sketcher.Constraint("Horizontal", 17))
sketch2.addConstraint(Sketcher.Constraint("Vertical", 18))
sketch2.addConstraint(Sketcher.Constraint("Horizontal", 19))
sketch2.addConstraint(Sketcher.Constraint("Symmetric", 1, 2, 8, 2, -2))
sketch2.addConstraint(Sketcher.Constraint("Symmetric", 3, 2, 10, 2, -2))
sketch2.addConstraint(Sketcher.Constraint("Symmetric", 13, 2, 16, 2, -2))
sketch2.addConstraint(Sketcher.Constraint("Symmetric", 15, 2, 18, 2, -2))
sketch2.addConstraint(Sketcher.Constraint("Vertical", 3, 2, 4, 2))
sketch2.addConstraint(Sketcher.Constraint("Vertical", 6, 2, 9, 2))
sketch2.addConstraint(Sketcher.Constraint("Vertical", 7, 2, 12, 2))
sketch2.addConstraint(Sketcher.Constraint("DistanceX", 1, 1, 1, 2, 66.0))
sketch2.addConstraint(Sketcher.Constraint("DistanceX", 5, 1, 5, 2, 230.0))
sketch2.addConstraint(Sketcher.Constraint("DistanceY", 0, 2, 0, 1, 5.0))
sketch2.addConstraint(Sketcher.Constraint("DistanceY", 12, 2, 12, 1, 4.0))
sketch2.addConstraint(Sketcher.Constraint("DistanceX", 13, 1, 13, 2, 15.5))
sketch2.addConstraint(Sketcher.Constraint("DistanceY", 3, 2, 4, 2, 56.0))
sketch2.addConstraint(Sketcher.Constraint("DistanceY", 4, 2, 4, 1, 11.25))
sketch2.addConstraint(Sketcher.Constraint("DistanceY", 12, 2, 7, 2, 63.5))
sketch2.addConstraint(Sketcher.Constraint("DistanceY", -1, 1, 0, 2, 64.450904))
pocket1 = doc.addObject("PartDesign::Pocket", "Pocket")
body.addObject(pocket1)
pocket1.Profile = sketch2
pocket1.Type = "ThroughAll"

# Sketch on XZ plane
sketch3 = doc.addObject("Sketcher::SketchObject", "Sketch002")
body.addObject(sketch3)
sketch3.AttachmentSupport = (doc.XZ_Plane, [""])
sketch3.MapMode = "FlatFace"
sketch3.AttachmentOffset = App.Placement(V(0, 0, -125.450904), App.Rotation())
sketch3.addGeometry(Part.Circle(V(-107, -105, 0), V(0, 0, 1), 3.4), False)
sketch3.addGeometry(Part.Circle(V(-107, 55, 0), V(0, 0, 1), 3.4), False)
sketch3.addGeometry(Part.Circle(V(-107, -55, 0), V(0, 0, 1), 3.4), False)
sketch3.addGeometry(Part.Circle(V(-107, 105, 0), V(0, 0, 1), 3.4), False)
sketch3.addGeometry(Part.Circle(V(107, -55, 0), V(0, 0, 1), 3.4), False)
sketch3.addGeometry(Part.Circle(V(107, 105, 0), V(0, 0, 1), 3.4), False)
sketch3.addGeometry(Part.Circle(V(107, -105, 0), V(0, 0, 1), 3.4), False)
sketch3.addGeometry(Part.Circle(V(107, 55, 0), V(0, 0, 1), 3.4), False)
sketch3.addConstraint(Sketcher.Constraint("Equal", 0, 1))
sketch3.addConstraint(Sketcher.Constraint("Equal", 1, 2))
sketch3.addConstraint(Sketcher.Constraint("Equal", 2, 3))
sketch3.addConstraint(Sketcher.Constraint("Equal", 3, 4))
sketch3.addConstraint(Sketcher.Constraint("Equal", 4, 5))
sketch3.addConstraint(Sketcher.Constraint("Equal", 5, 6))
sketch3.addConstraint(Sketcher.Constraint("Equal", 6, 7))
sketch3.addConstraint(Sketcher.Constraint("Symmetric", 1, 3, 4, 3, -1, 1))
sketch3.addConstraint(Sketcher.Constraint("Symmetric", 0, 3, 5, 3, -1, 1))
sketch3.addConstraint(Sketcher.Constraint("Symmetric", 3, 3, 6, 3, -1, 1))
sketch3.addConstraint(Sketcher.Constraint("Symmetric", 2, 3, 7, 3, -1, 1))
sketch3.addConstraint(Sketcher.Constraint("Symmetric", 2, 3, 4, 3, -2))
sketch3.addConstraint(Sketcher.Constraint("Symmetric", 3, 3, 5, 3, -2))
sketch3.addConstraint(Sketcher.Constraint("Vertical", 0, 3, 1, 3))
sketch3.addConstraint(Sketcher.Constraint("Diameter", 0, 6.8))
sketch3.addConstraint(Sketcher.Constraint("DistanceX", 0, 3, -1, 1, 107.0))
sketch3.addConstraint(Sketcher.Constraint("DistanceY", 0, 3, -1, 1, 105.0))
sketch3.addConstraint(Sketcher.Constraint("DistanceY", -1, 1, 1, 3, 55.0))
doc.recompute()
hole = doc.addObject("PartDesign::Hole", "Hole")
body.addObject(hole)
hole.Profile = sketch3
hole.ThreadType = "None"
hole.Diameter = 6.8
hole.DepthType = "Dimension"
hole.Depth = 25
hole.DrillPoint = "Angled"
hole.DrillPointAngle = 118
hole.Reversed = True

# Sketch on XZ plane
sketch4 = doc.addObject("Sketcher::SketchObject", "Sketch003")
body.addObject(sketch4)
sketch4.AttachmentSupport = (doc.XZ_Plane, [""])
sketch4.MapMode = "FlatFace"
sketch4.AttachmentOffset = App.Placement(V(0, 0, -125.450904), App.Rotation())
sketch4.addGeometry(Part.Circle(V(-107, 0, 0), V(0, 0, 1), 4), False)
sketch4.addGeometry(Part.Circle(V(107, 0, 0), V(0, 0, 1), 4), False)
sketch4.addConstraint(Sketcher.Constraint("Equal", 0, 1))
sketch4.addConstraint(Sketcher.Constraint("Symmetric", 0, 3, 1, 3, -1, 1))
sketch4.addConstraint(Sketcher.Constraint("PointOnObject", 0, 3, -1))
sketch4.addConstraint(Sketcher.Constraint("Diameter", 0, 8.0))
sketch4.addConstraint(Sketcher.Constraint("DistanceX", 0, 3, -1, 1, 107.0))
doc.recompute()
hole2 = doc.addObject("PartDesign::Hole", "Hole001")
body.addObject(hole2)
hole2.Profile = sketch4
hole2.ThreadType = "None"
hole2.Diameter = 8
hole2.DepthType = "Dimension"
hole2.Depth = 15
hole2.DrillPoint = "Angled"
hole2.DrillPointAngle = 118
hole2.Reversed = True

# Sketch on XZ plane
sketch5 = doc.addObject("Sketcher::SketchObject", "Sketch004")
body.addObject(sketch5)
sketch5.AttachmentSupport = (doc.XZ_Plane, [""])
sketch5.MapMode = "FlatFace"
sketch5.AttachmentOffset = App.Placement(V(0, 0, -90.450904), App.Rotation())
add_polygon(sketch5, [(101.338193, 25), (115, 25), (115, 22.9), (102.6, 22.9)])  # lines 0-3
sketch5.addGeometry(Part.LineSegment(V(115, 25, 0), V(101.338193, 25, 0)), True)  # axis
sketch5.addConstraint(Sketcher.Constraint("Horizontal", 0))
sketch5.addConstraint(Sketcher.Constraint("Vertical", 1))
sketch5.addConstraint(Sketcher.Constraint("Horizontal", 2))
sketch5.addConstraint(Sketcher.Constraint("Horizontal", 4))
sketch5.addConstraint(Sketcher.Constraint("Coincident", 4, 1, 0, 2))
sketch5.addConstraint(Sketcher.Constraint("Equal", 0, 4))
sketch5.addConstraint(Sketcher.Constraint("Angle", 3, Q("121 deg")))
sketch5.addConstraint(Sketcher.Constraint("DistanceX", 2, 2, 2, 1, 12.4))
sketch5.addConstraint(Sketcher.Constraint("DistanceY", 1, 2, 1, 1, 2.1))
sketch5.addConstraint(Sketcher.Constraint("DistanceX", -1, 1, 0, 2, 115.0))
sketch5.addConstraint(Sketcher.Constraint("DistanceY", -1, 1, 0, 2, 25.0))
groove = doc.addObject("PartDesign::Groove", "Groove")
body.addObject(groove)
groove.Profile = sketch5
groove.ReferenceAxis = (sketch5, ["Axis0"])
groove.Angle = 360
doc.recompute()

linearpattern = doc.addObject("PartDesign::LinearPattern", "LinearPattern")
body.addObject(linearpattern)
linearpattern.Originals = [groove]
linearpattern.Direction = (doc.Z_Axis, [""])
linearpattern.Mode = "offset"
linearpattern.Offset = 50
linearpattern.Occurrences = 2
linearpattern.Reversed = True
body.Tip = linearpattern
doc.recompute()

mirrored = doc.addObject("PartDesign::Mirrored", "Mirrored")
body.addObject(mirrored)
mirrored.Originals = [groove]
mirrored.MirrorPlane = (doc.YZ_Plane, [""])
body.Tip = mirrored

# Sketch on XZ plane
sketch6 = doc.addObject("Sketcher::SketchObject", "Sketch005")
body.addObject(sketch6)
sketch6.AttachmentSupport = (doc.XZ_Plane, [""])
sketch6.MapMode = "FlatFace"
sketch6.AttachmentOffset = App.Placement(V(0, 0, -90.450904), App.Rotation())
add_polygon(sketch6, [(-115, -25), (-101.338193, -25), (-102.6, -27.1), (-115, -27.1)])  # lines 0-3
sketch6.addGeometry(Part.LineSegment(V(-101.338193, -25, 0), V(-115, -25, 0)), True)  # axis
sketch6.addConstraint(Sketcher.Constraint("Horizontal", 0))
sketch6.addConstraint(Sketcher.Constraint("Horizontal", 2))
sketch6.addConstraint(Sketcher.Constraint("Vertical", 3))
sketch6.addConstraint(Sketcher.Constraint("Horizontal", 4))
sketch6.addConstraint(Sketcher.Constraint("Coincident", 4, 1, 0, 2))
sketch6.addConstraint(Sketcher.Constraint("Vertical", 2, 2, 4, 2))
sketch6.addConstraint(Sketcher.Constraint("Angle", 1, Q("-121 deg")))
sketch6.addConstraint(Sketcher.Constraint("DistanceX", 2, 2, 2, 1, 12.4))
sketch6.addConstraint(Sketcher.Constraint("DistanceY", 3, 1, 3, 2, 2.1))
sketch6.addConstraint(Sketcher.Constraint("DistanceY", 0, 2, -1, 1, 25.0))
sketch6.addConstraint(Sketcher.Constraint("DistanceX", 2, 2, -1, 1, 115.0))
groove2 = doc.addObject("PartDesign::Groove", "Groove001")
body.addObject(groove2)
groove2.Profile = sketch6
groove2.ReferenceAxis = (sketch6, ["Axis0"])
groove2.Angle = 360

doc.recompute()
